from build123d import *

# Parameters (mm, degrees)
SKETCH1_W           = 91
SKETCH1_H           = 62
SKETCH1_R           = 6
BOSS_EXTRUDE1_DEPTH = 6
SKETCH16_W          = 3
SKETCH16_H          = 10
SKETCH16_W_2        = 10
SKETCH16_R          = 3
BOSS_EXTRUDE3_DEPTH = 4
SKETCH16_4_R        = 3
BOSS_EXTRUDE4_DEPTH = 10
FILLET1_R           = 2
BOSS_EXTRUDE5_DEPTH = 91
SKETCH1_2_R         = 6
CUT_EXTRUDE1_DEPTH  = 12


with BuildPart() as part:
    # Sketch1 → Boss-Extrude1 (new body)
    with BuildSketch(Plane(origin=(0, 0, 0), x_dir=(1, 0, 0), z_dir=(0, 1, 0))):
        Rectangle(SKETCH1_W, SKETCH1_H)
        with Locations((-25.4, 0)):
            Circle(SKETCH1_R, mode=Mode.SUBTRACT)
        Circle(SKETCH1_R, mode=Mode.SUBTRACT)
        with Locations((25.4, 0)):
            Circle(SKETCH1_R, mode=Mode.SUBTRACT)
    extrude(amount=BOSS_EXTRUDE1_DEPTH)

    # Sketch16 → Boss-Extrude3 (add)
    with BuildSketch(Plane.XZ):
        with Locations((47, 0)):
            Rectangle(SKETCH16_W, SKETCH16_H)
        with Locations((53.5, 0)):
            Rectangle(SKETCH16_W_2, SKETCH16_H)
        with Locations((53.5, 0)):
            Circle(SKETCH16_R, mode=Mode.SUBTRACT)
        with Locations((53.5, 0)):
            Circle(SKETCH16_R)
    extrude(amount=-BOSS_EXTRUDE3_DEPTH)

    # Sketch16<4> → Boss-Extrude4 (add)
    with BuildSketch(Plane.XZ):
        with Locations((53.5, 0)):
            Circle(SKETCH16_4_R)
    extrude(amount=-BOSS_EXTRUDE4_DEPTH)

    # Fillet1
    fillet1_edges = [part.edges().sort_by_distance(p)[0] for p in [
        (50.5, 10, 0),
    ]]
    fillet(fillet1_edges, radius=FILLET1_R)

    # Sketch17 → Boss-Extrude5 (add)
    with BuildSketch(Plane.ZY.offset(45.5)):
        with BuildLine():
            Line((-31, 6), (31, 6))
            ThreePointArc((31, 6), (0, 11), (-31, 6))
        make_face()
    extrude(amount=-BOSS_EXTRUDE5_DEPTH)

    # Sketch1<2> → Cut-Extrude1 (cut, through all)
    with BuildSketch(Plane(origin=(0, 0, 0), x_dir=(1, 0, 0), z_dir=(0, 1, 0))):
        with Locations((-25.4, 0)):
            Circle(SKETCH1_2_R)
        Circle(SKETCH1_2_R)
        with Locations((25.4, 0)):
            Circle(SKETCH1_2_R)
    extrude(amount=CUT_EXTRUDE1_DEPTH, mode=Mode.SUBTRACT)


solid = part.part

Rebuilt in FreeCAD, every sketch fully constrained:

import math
import FreeCAD as App
import Part
import Sketcher


def edges_at(feature, points):
    """Names of the edges that pass closest to the given points."""
    edges = feature.Shape.Edges
    near = lambda p: min(range(len(edges)), key=lambda i: edges[i].distToShape(Part.Vertex(*p))[0])
    return sorted({f"Edge{near(p) + 1}" for p in points})


def add_polygon(sketch, points):
    """Adds a closed chain of lines whose ends are joined by coincident constraints."""
    first, n = sketch.GeometryCount, len(points)
    for a, b in zip(points, points[1:] + points[:1]):
        sketch.addGeometry(Part.LineSegment(App.Vector(*a, 0), App.Vector(*b, 0)), False)
    for i in range(n):
        sketch.addConstraint(Sketcher.Constraint("Coincident", first + i, 2, first + (i + 1) % n, 1))

doc = App.newDocument("Part")
body = doc.addObject("PartDesign::Body", "Body")

# Sketch on XZ plane
sketch1 = body.newObject("Sketcher::SketchObject", "Sketch")
sketch1.AttachmentSupport = (doc.getObject("XZ_Plane"), [""])
sketch1.MapMode = "FlatFace"
add_polygon(sketch1, [(-45.5, -31), (-45.5, 31), (45.5, 31), (45.5, -31)])  # lines 0-3
sketch1.addGeometry(Part.Circle(App.Vector(-25.4, 0, 0), App.Vector(0, 0, 1), 6), False)  # 4
sketch1.addGeometry(Part.Circle(App.Vector(0, 0, 0), App.Vector(0, 0, 1), 6), False)  # 5
sketch1.addGeometry(Part.Circle(App.Vector(25.4, 0, 0), App.Vector(0, 0, 1), 6), False)  # 6
sketch1.addConstraint([
    Sketcher.Constraint("Vertical", 0),
    Sketcher.Constraint("Horizontal", 1),
    Sketcher.Constraint("Vertical", 2),
    Sketcher.Constraint("Horizontal", 3),
    Sketcher.Constraint("Coincident", 5, 3, -1, 1),
    Sketcher.Constraint("Equal", 4, 5),
    Sketcher.Constraint("Equal", 5, 6),
    Sketcher.Constraint("Symmetric", 4, 3, 6, 3, -1, 1),
    Sketcher.Constraint("Symmetric", 0, 2, 2, 2, -1, 1),
    Sketcher.Constraint("PointOnObject", 4, 3, -1),
    Sketcher.Constraint("Diameter", 4, 12.0),
    Sketcher.Constraint("DistanceX", 1, 1, 1, 2, 91.0),
    Sketcher.Constraint("DistanceY", 0, 1, 0, 2, 62.0),
    Sketcher.Constraint("DistanceX", 4, 3, -1, 1, 25.4),
])
pad1 = body.newObject("PartDesign::Pad", "Pad")
pad1.Profile = sketch1
pad1.Length = 6
pad1.Reversed = True

# Sketch on XZ plane
sketch2 = body.newObject("Sketcher::SketchObject", "Sketch001")
sketch2.AttachmentSupport = (doc.getObject("XZ_Plane"), [""])
sketch2.MapMode = "FlatFace"
add_polygon(sketch2, [(45.5, 5), (45.5, -5), (58.5, -5), (58.5, 5)])  # lines 0-3
sketch2.addConstraint([
    Sketcher.Constraint("Vertical", 0),
    Sketcher.Constraint("Horizontal", 1),
    Sketcher.Constraint("Vertical", 2),
    Sketcher.Constraint("Horizontal", 3),
    Sketcher.Constraint("DistanceX", 1, 1, 1, 2, 13.0),
    Sketcher.Constraint("DistanceY", 0, 2, 0, 1, 10.0),
    Sketcher.Constraint("DistanceY", 0, 2, -1, 1, 5.0),
    Sketcher.Constraint("DistanceX", -1, 1, 0, 2, 45.5),
])
pad2 = body.newObject("PartDesign::Pad", "Pad001")
pad2.Profile = sketch2
pad2.Length = 4
pad2.Reversed = True

# Sketch on XZ plane
sketch3 = body.newObject("Sketcher::SketchObject", "Sketch002")
sketch3.AttachmentSupport = (doc.getObject("XZ_Plane"), [""])
sketch3.MapMode = "FlatFace"
sketch3.addGeometry(Part.Circle(App.Vector(53.5, 0, 0), App.Vector(0, 0, 1), 3), False)
sketch3.addConstraint([
    Sketcher.Constraint("PointOnObject", 0, 3, -1),
    Sketcher.Constraint("Diameter", 0, 6.0),
    Sketcher.Constraint("DistanceX", -1, 1, 0, 3, 53.5),
])
pad3 = body.newObject("PartDesign::Pad", "Pad002")
pad3.Profile = sketch3
pad3.Length = 10
pad3.Reversed = True
doc.recompute()

fillet = body.newObject("PartDesign::Fillet", "Fillet")
fillet.Base = (pad3, edges_at(pad3, [(50.5, 10, 0)]))
fillet.Radius = 2

# Sketch on YZ plane
sketch4 = body.newObject("Sketcher::SketchObject", "Sketch003")
sketch4.AttachmentSupport = (doc.getObject("YZ_Plane"), [""])
sketch4.MapMode = "FlatFace"
sketch4.AttachmentOffset = App.Placement(App.Vector(0, 0, -45.5), App.Rotation())
sketch4.addGeometry([
    Part.LineSegment(App.Vector(6, -31, 0), App.Vector(6, 31, 0)),
    Part.ArcOfCircle(Part.Circle(App.Vector(-87.6, 0, 0), App.Vector(0, 0, 1), 98.6), math.radians(-18.324694), math.radians(18.324694)),
], False)
sketch4.addConstraint([
    Sketcher.Constraint("Coincident", 0, 1, 1, 1),
    Sketcher.Constraint("Coincident", 1, 2, 0, 2),
    Sketcher.Constraint("Vertical", 0),
    Sketcher.Constraint("PointOnObject", 1, 3, -1),
    Sketcher.Constraint("Radius", 1, 98.6),
    Sketcher.Constraint("DistanceY", 0, 1, 0, 2, 62.0),
    Sketcher.Constraint("DistanceX", -1, 1, 0, 1, 6.0),
])
pad4 = body.newObject("PartDesign::Pad", "Pad003")
pad4.Profile = sketch4
pad4.Length = 91

# Sketch on XZ plane
sketch5 = body.newObject("Sketcher::SketchObject", "Sketch004")
sketch5.AttachmentSupport = (doc.getObject("XZ_Plane"), [""])
sketch5.MapMode = "FlatFace"
sketch5.addGeometry([
    Part.Circle(App.Vector(-25.4, 0, 0), App.Vector(0, 0, 1), 6),
    Part.Circle(App.Vector(0, 0, 0), App.Vector(0, 0, 1), 6),
    Part.Circle(App.Vector(25.4, 0, 0), App.Vector(0, 0, 1), 6),
], False)
sketch5.addConstraint([
    Sketcher.Constraint("Coincident", 1, 3, -1, 1),
    Sketcher.Constraint("Equal", 0, 1),
    Sketcher.Constraint("Equal", 1, 2),
    Sketcher.Constraint("Symmetric", 0, 3, 2, 3, -1, 1),
    Sketcher.Constraint("PointOnObject", 0, 3, -1),
    Sketcher.Constraint("Diameter", 0, 12.0),
    Sketcher.Constraint("DistanceX", 0, 3, -1, 1, 25.4),
])
pocket1 = body.newObject("PartDesign::Pocket", "Pocket")
pocket1.Profile = sketch5
pocket1.Type = "ThroughAll"

doc.recompute()
